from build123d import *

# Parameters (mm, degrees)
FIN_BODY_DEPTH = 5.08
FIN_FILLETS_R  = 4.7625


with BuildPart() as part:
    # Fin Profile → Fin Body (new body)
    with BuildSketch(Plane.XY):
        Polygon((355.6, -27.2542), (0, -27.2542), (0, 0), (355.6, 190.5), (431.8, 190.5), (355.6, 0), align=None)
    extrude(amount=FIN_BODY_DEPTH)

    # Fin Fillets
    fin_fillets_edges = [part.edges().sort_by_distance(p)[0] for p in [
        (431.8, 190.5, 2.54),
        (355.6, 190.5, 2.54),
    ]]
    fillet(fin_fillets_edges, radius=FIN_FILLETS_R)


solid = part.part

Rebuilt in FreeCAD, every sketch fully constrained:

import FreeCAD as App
import Part
import Sketcher
Q = App.Units.Quantity


def edges_at(feature, points):
    """Names of the edges that pass closest to the given points."""
    edges = feature.Shape.Edges
    near = lambda p: min(range(len(edges)), key=lambda i: edges[i].distToShape(Part.Vertex(*p))[0])
    return sorted({f"Edge{near(p) + 1}" for p in points})


def add_polygon(sketch, points):
    """Adds a closed chain of lines whose ends are joined by coincident constraints."""
    first, n = sketch.GeometryCount, len(points)
    for a, b in zip(points, points[1:] + points[:1]):
        sketch.addGeometry(Part.LineSegment(App.Vector(*a, 0), App.Vector(*b, 0)), False)
    for i in range(n):
        sketch.addConstraint(Sketcher.Constraint("Coincident", first + i, 2, first + (i + 1) % n, 1))

doc = App.newDocument("Part")
body = doc.addObject("PartDesign::Body", "Body")

sketch1 = doc.addObject("Sketcher::SketchObject", "Sketch")
body.addObject(sketch1)
sketch1.AttachmentSupport = (doc.XY_Plane, [""])
sketch1.MapMode = "FlatFace"
add_polygon(sketch1, [(0, -27), (356, -27), (356, 0), (432, 190), (356, 190), (0, 0)])
sketch1.addConstraint([
    Sketcher.Constraint("Horizontal", 0),
    Sketcher.Constraint("Vertical", 1),
    Sketcher.Constraint("Horizontal", 3),
    Sketcher.Constraint("Vertical", 5),
    Sketcher.Constraint("Coincident", 4, 2, -1, 1),
    Sketcher.Constraint("PointOnObject", 1, 2, -1),
    Sketcher.Constraint("Vertical", 1, 2, 3, 2),
    Sketcher.Constraint("DistanceX", 0, 1, 0, 2, Q("14 in")),
    Sketcher.Constraint("DistanceX", 3, 2, 3, 1, Q("3 in")),
    Sketcher.Constraint("DistanceY", -1, 1, 2, 2, Q("7.5 in")),
    Sketcher.Constraint("DistanceY", 1, 1, 1, 2, Q("1.073 in")),
])
pad1 = doc.addObject("PartDesign::Pad", "Pad")
body.addObject(pad1)
pad1.Profile = sketch1
pad1.Length = Q("0.2 in")
doc.recompute()

fillet = doc.addObject("PartDesign::Fillet", "Fillet")
body.addObject(fillet)
fillet.Base = (pad1, edges_at(pad1, [(431.8, 190.5, 2.54), (355.6, 190.5, 2.54)]))
fillet.Radius = Q("0.1875 in")

doc.recompute()
